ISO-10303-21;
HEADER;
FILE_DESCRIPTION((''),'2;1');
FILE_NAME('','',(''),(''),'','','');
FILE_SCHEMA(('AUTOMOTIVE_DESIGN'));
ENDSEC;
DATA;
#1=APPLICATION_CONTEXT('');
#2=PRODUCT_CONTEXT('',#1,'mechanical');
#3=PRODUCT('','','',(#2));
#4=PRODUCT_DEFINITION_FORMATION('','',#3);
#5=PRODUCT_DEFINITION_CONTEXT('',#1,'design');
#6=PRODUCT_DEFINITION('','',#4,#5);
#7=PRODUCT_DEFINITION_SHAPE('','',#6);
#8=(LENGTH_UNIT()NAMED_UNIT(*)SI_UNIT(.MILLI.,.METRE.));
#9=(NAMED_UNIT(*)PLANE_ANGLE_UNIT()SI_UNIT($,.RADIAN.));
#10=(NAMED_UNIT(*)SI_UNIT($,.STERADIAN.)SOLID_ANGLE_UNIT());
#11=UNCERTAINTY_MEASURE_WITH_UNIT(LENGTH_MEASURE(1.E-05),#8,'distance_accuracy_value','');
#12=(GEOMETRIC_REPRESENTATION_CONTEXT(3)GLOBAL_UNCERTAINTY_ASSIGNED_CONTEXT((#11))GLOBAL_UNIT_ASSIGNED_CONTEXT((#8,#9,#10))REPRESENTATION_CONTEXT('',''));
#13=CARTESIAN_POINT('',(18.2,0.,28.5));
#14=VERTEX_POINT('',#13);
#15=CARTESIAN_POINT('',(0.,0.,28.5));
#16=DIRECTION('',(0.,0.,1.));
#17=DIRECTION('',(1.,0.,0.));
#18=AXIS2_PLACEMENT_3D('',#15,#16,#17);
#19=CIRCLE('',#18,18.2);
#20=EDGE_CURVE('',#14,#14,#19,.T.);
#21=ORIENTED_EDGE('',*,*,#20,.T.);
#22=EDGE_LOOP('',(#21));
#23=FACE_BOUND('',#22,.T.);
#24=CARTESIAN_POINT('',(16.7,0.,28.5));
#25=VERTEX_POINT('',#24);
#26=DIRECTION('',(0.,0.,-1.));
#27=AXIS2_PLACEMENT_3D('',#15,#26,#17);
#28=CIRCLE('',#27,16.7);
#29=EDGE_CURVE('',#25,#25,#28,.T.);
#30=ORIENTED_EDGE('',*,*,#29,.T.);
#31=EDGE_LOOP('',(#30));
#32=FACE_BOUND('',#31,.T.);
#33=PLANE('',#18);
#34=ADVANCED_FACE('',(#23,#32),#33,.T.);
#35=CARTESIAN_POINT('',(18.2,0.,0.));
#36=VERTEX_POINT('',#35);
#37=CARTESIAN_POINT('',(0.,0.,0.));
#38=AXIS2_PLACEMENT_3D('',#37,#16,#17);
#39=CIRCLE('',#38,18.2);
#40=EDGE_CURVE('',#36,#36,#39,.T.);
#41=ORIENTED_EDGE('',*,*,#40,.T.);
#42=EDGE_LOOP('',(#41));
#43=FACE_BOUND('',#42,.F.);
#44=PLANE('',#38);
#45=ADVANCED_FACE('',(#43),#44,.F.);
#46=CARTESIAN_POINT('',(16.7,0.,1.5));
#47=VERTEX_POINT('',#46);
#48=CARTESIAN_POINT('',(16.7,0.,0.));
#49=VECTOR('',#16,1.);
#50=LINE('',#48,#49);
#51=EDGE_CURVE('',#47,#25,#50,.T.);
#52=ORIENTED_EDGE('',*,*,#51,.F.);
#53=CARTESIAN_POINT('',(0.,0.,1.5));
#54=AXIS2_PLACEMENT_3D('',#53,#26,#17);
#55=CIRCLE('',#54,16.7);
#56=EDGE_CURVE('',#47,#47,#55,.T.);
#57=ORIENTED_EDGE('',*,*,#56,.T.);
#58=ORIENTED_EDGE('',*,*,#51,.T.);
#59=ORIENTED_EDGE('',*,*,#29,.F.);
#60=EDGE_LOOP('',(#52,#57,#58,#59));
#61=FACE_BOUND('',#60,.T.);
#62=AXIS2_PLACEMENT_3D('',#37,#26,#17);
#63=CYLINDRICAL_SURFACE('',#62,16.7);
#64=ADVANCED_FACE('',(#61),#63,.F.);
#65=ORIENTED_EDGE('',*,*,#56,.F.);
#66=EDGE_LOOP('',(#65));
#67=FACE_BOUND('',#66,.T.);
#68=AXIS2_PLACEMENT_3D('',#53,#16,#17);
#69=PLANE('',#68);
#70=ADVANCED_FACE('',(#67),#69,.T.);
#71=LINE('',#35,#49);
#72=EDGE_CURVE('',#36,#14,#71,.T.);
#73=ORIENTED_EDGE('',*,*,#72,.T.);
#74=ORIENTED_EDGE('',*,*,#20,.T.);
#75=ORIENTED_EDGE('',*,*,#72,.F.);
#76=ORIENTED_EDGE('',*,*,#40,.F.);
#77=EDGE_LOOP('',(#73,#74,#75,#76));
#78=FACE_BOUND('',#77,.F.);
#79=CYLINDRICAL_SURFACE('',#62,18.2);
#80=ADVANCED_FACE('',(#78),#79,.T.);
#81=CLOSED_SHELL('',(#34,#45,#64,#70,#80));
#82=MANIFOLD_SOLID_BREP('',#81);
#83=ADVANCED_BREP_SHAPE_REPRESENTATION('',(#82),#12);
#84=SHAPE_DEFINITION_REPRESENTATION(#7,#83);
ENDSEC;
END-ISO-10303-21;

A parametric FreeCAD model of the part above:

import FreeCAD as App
import Part
import Sketcher
from FreeCAD import Vector
Q = App.Units.Quantity


def faces_at(feature, points):
    """Names of the faces that lie closest to the given points."""
    faces = feature.Shape.Faces
    near = lambda p: min(range(len(faces)), key=lambda i: faces[i].distToShape(Part.Vertex(*p))[0])
    return sorted({f"Face{near(p) + 1}" for p in points})

doc = App.newDocument("Part")
body = doc.addObject("PartDesign::Body", "Body")

# Sketch on XY plane
sketch1 = doc.addObject("Sketcher::SketchObject", "Sketch")
body.addObject(sketch1)
sketch1.AttachmentSupport = (doc.XY_Plane, [""])
sketch1.MapMode = "FlatFace"
sketch1.addGeometry(Part.Circle(Vector(0, 0, 0), Vector(0, 0, 1), 18), False)
sketch1.addConstraint(Sketcher.Constraint("Coincident", 0, 3, -1, 1))
sketch1.addConstraint(Sketcher.Constraint("Diameter", 0, Q("36.4 mm")))
pad1 = doc.addObject("PartDesign::Pad", "Pad")
body.addObject(pad1)
pad1.Profile = sketch1
pad1.Length = 28.5
doc.recompute()

thickness = doc.addObject("PartDesign::Thickness", "Thickness")
body.addObject(thickness)
thickness.Base = (pad1, faces_at(pad1, [(5.334, 0.287, 28.5)]))
thickness.Value = 1.5
thickness.Reversed = True
thickness.Join = "Intersection"

doc.recompute()
